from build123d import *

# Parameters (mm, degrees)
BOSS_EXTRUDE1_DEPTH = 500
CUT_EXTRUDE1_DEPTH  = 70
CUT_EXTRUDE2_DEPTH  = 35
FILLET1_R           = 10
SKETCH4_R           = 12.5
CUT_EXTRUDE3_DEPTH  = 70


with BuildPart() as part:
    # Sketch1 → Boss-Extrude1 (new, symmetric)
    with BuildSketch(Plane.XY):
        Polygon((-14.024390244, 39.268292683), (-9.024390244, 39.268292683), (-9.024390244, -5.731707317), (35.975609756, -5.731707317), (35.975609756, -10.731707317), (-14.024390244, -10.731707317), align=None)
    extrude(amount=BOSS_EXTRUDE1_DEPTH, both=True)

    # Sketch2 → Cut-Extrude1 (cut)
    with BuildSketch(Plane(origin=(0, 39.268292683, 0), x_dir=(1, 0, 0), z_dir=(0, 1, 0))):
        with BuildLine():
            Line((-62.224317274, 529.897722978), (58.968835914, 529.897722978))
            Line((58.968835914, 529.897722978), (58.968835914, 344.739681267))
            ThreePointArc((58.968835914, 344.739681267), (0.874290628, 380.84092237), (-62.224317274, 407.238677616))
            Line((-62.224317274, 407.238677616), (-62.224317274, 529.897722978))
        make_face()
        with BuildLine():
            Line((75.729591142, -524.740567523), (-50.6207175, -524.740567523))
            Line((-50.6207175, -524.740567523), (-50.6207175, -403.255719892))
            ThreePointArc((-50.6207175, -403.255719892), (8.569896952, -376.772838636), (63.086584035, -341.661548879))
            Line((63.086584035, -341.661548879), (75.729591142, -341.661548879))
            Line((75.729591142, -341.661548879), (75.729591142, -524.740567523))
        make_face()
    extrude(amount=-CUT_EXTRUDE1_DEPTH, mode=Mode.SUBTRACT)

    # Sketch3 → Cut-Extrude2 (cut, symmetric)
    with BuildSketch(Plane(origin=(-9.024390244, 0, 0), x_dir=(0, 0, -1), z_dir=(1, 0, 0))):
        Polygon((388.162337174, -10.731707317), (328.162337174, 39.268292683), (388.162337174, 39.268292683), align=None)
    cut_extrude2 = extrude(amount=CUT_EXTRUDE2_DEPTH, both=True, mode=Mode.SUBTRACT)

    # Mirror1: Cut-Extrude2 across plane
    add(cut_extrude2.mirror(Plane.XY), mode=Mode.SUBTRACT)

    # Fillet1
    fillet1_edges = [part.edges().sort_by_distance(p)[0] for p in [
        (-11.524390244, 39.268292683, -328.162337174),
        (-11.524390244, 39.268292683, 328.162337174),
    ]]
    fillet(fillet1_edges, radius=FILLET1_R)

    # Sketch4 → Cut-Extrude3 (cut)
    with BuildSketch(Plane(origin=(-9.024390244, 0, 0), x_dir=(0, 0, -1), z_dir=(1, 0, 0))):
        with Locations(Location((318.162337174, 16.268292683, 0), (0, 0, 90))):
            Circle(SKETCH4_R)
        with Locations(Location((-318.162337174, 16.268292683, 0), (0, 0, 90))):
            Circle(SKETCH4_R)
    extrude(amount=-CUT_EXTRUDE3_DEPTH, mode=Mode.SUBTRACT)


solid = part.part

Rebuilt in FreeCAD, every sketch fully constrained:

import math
import FreeCAD as App
import Part
import Sketcher
from FreeCAD import Vector
Q = App.Units.Quantity


def edges_at(feature, points):
    """Names of the edges that pass closest to the given points."""
    edges = feature.Shape.Edges
    near = lambda p: min(range(len(edges)), key=lambda i: edges[i].distToShape(Part.Vertex(*p))[0])
    return sorted({f"Edge{near(p) + 1}" for p in points})


def add_polygon(sketch, points):
    """Adds a closed chain of lines whose ends are joined by coincident constraints."""
    first, n = sketch.GeometryCount, len(points)
    for a, b in zip(points, points[1:] + points[:1]):
        sketch.addGeometry(Part.LineSegment(App.Vector(*a, 0), App.Vector(*b, 0)), False)
    for i in range(n):
        sketch.addConstraint(Sketcher.Constraint("Coincident", first + i, 2, first + (i + 1) % n, 1))

doc = App.newDocument("Part")
body = doc.addObject("PartDesign::Body", "Body")

# Sketch on XY plane
sketch1 = body.newObject("Sketcher::SketchObject", "Sketch")
sketch1.AttachmentSupport = (doc.getObject("XY_Plane"), [""])
sketch1.MapMode = "FlatFace"
add_polygon(sketch1, [(-9, 39), (-14, 39), (-14, -11), (36, -11), (36, -6), (-9, -6)])  # lines 0-5
sketch1.addConstraint([
    Sketcher.Constraint("Horizontal", 0),
    Sketcher.Constraint("Vertical", 1),
    Sketcher.Constraint("Horizontal", 2),
    Sketcher.Constraint("Vertical", 3),
    Sketcher.Constraint("Horizontal", 4),
    Sketcher.Constraint("Vertical", 5),
    Sketcher.Constraint("Equal", 2, 1),
    Sketcher.Constraint("Equal", 0, 3),
    Sketcher.Constraint("DistanceX", 0, 2, 0, 1, Q("5 mm")),
    Sketcher.Constraint("DistanceX", 2, 1, 2, 2, Q("50 mm")),
    Sketcher.Constraint("DistanceX", 0, 2, -1, 1, Q("14.02439 mm")),
    Sketcher.Constraint("DistanceY", -1, 1, 0, 2, Q("39.268293 mm")),
])
pad1 = body.newObject("PartDesign::Pad", "Pad")
pad1.Profile = sketch1
pad1.Length = 1000
pad1.Midplane = True

# Sketch on XZ plane
sketch2 = body.newObject("Sketcher::SketchObject", "Sketch001")
sketch2.AttachmentSupport = (doc.getObject("XZ_Plane"), [""])
sketch2.MapMode = "FlatFace"
sketch2.AttachmentOffset = App.Placement(Vector(0, 0, -39.268293), App.Rotation())
sketch2.addGeometry([
    Part.LineSegment(Vector(59, -530, 0), Vector(-62, -530, 0)),  # 0
    Part.LineSegment(Vector(-62, -530, 0), Vector(-62, -407, 0)),  # 1
    Part.ArcOfCircle(Part.Circle(Vector(-196, 0, 0), Vector(0, 0, 1), 429), math.radians(-71.88), math.radians(-53.56)),  # 2
    Part.LineSegment(Vector(59, -345, 0), Vector(59, -530, 0)),  # 3
    Part.LineSegment(Vector(-51, 525, 0), Vector(76, 525, 0)),  # 4
    Part.LineSegment(Vector(76, 525, 0), Vector(76, 342, 0)),  # 5
    Part.LineSegment(Vector(76, 342, 0), Vector(63, 342, 0)),  # 6
    Part.ArcOfCircle(Part.Circle(Vector(-196, 0, 0), Vector(0, 0, 1), 429), math.radians(52.88), math.radians(70.23)),  # 7
    Part.LineSegment(Vector(-51, 403, 0), Vector(-51, 525, 0)),  # 8
], False)
sketch2.addConstraint([
    Sketcher.Constraint("Coincident", 0, 2, 1, 1),
    Sketcher.Constraint("Coincident", 1, 2, 2, 1),
    Sketcher.Constraint("Coincident", 2, 2, 3, 1),
    Sketcher.Constraint("Coincident", 3, 2, 0, 1),
    Sketcher.Constraint("Coincident", 4, 2, 5, 1),
    Sketcher.Constraint("Coincident", 5, 2, 6, 1),
    Sketcher.Constraint("Coincident", 6, 2, 7, 1),
    Sketcher.Constraint("Coincident", 7, 2, 8, 1),
    Sketcher.Constraint("Coincident", 8, 2, 4, 1),
    Sketcher.Constraint("Horizontal", 0),
    Sketcher.Constraint("Vertical", 1),
    Sketcher.Constraint("Vertical", 3),
    Sketcher.Constraint("Horizontal", 4),
    Sketcher.Constraint("Vertical", 5),
    Sketcher.Constraint("Horizontal", 6),
    Sketcher.Constraint("Vertical", 8),
    Sketcher.Constraint("Coincident", 7, 3, 2, 3),
    Sketcher.Constraint("Equal", 2, 7),
    Sketcher.Constraint("PointOnObject", 2, 3, -1),
    Sketcher.Constraint("Radius", 2, Q("428.5 mm")),
    Sketcher.Constraint("DistanceX", 4, 1, 4, 2, Q("126.350309 mm")),
    Sketcher.Constraint("DistanceY", 3, 2, 3, 1, Q("185.158042 mm")),
    Sketcher.Constraint("DistanceY", 5, 2, 5, 1, Q("183.079019 mm")),
    Sketcher.Constraint("DistanceX", 8, 2, 6, 2, Q("113.707302 mm")),
    Sketcher.Constraint("DistanceX", 0, 2, 0, 1, Q("121.193153 mm")),
    Sketcher.Constraint("DistanceY", 1, 1, 1, 2, Q("122.659045 mm")),
    Sketcher.Constraint("DistanceY", 8, 1, 8, 2, Q("121.484848 mm")),
    Sketcher.Constraint("DistanceX", 2, 3, -1, 1, Q("195.52439 mm")),
])
pocket1 = body.newObject("PartDesign::Pocket", "Pocket")
pocket1.Profile = sketch2
pocket1.Length = 70
pocket1.Reversed = True

# Sketch on YZ plane
sketch3 = body.newObject("Sketcher::SketchObject", "Sketch002")
sketch3.AttachmentSupport = (doc.getObject("YZ_Plane"), [""])
sketch3.MapMode = "FlatFace"
sketch3.AttachmentOffset = App.Placement(Vector(0, 0, -9.02439), App.Rotation())
add_polygon(sketch3, [(39, -328), (-11, -388), (39, -388)])  # lines 0-2
sketch3.addConstraint([
    Sketcher.Constraint("Horizontal", 1),
    Sketcher.Constraint("Vertical", 2),
    Sketcher.Constraint("DistanceX", 1, 1, 1, 2, Q("50 mm")),
    Sketcher.Constraint("DistanceY", 2, 1, 2, 2, Q("60 mm")),
    Sketcher.Constraint("DistanceX", 0, 2, -1, 1, Q("10.731707 mm")),
    Sketcher.Constraint("DistanceY", 0, 2, -1, 1, Q("388.162337 mm")),
])
pocket2 = body.newObject("PartDesign::Pocket", "Pocket001")
pocket2.Profile = sketch3
pocket2.Length = 70
pocket2.Midplane = True
doc.recompute()

mirrored = body.newObject("PartDesign::Mirrored", "Mirrored")
mirrored.Originals = [pocket2]
mirrored.MirrorPlane = (doc.getObject("XY_Plane"), [""])
body.Tip = mirrored
doc.recompute()

fillet = body.newObject("PartDesign::Fillet", "Fillet")
fillet.Base = (mirrored, edges_at(mirrored, [(-11.524, 39.268, -328.162), (-11.524, 39.268, 328.162)]))
fillet.Radius = 10

# Sketch on YZ plane
sketch4 = body.newObject("Sketcher::SketchObject", "Sketch003")
sketch4.AttachmentSupport = (doc.getObject("YZ_Plane"), [""])
sketch4.MapMode = "FlatFace"
sketch4.AttachmentOffset = App.Placement(Vector(0, 0, -9.02439), App.Rotation())
sketch4.addGeometry([
    Part.Circle(Vector(16, -318, 0), Vector(0, 0, 1), 12),
    Part.Circle(Vector(16, 318, 0), Vector(0, 0, 1), 12),
], False)
sketch4.addConstraint([
    Sketcher.Constraint("Equal", 0, 1),
    Sketcher.Constraint("Symmetric", 0, 3, 1, 3, -1),
    Sketcher.Constraint("Diameter", 0, Q("25 mm")),
    Sketcher.Constraint("DistanceX", -1, 1, 0, 3, Q("16.268293 mm")),
    Sketcher.Constraint("DistanceY", 0, 3, -1, 1, Q("318.162337 mm")),
])
pocket3 = body.newObject("PartDesign::Pocket", "Pocket002")
pocket3.Profile = sketch4
pocket3.Length = 70

doc.recompute()
